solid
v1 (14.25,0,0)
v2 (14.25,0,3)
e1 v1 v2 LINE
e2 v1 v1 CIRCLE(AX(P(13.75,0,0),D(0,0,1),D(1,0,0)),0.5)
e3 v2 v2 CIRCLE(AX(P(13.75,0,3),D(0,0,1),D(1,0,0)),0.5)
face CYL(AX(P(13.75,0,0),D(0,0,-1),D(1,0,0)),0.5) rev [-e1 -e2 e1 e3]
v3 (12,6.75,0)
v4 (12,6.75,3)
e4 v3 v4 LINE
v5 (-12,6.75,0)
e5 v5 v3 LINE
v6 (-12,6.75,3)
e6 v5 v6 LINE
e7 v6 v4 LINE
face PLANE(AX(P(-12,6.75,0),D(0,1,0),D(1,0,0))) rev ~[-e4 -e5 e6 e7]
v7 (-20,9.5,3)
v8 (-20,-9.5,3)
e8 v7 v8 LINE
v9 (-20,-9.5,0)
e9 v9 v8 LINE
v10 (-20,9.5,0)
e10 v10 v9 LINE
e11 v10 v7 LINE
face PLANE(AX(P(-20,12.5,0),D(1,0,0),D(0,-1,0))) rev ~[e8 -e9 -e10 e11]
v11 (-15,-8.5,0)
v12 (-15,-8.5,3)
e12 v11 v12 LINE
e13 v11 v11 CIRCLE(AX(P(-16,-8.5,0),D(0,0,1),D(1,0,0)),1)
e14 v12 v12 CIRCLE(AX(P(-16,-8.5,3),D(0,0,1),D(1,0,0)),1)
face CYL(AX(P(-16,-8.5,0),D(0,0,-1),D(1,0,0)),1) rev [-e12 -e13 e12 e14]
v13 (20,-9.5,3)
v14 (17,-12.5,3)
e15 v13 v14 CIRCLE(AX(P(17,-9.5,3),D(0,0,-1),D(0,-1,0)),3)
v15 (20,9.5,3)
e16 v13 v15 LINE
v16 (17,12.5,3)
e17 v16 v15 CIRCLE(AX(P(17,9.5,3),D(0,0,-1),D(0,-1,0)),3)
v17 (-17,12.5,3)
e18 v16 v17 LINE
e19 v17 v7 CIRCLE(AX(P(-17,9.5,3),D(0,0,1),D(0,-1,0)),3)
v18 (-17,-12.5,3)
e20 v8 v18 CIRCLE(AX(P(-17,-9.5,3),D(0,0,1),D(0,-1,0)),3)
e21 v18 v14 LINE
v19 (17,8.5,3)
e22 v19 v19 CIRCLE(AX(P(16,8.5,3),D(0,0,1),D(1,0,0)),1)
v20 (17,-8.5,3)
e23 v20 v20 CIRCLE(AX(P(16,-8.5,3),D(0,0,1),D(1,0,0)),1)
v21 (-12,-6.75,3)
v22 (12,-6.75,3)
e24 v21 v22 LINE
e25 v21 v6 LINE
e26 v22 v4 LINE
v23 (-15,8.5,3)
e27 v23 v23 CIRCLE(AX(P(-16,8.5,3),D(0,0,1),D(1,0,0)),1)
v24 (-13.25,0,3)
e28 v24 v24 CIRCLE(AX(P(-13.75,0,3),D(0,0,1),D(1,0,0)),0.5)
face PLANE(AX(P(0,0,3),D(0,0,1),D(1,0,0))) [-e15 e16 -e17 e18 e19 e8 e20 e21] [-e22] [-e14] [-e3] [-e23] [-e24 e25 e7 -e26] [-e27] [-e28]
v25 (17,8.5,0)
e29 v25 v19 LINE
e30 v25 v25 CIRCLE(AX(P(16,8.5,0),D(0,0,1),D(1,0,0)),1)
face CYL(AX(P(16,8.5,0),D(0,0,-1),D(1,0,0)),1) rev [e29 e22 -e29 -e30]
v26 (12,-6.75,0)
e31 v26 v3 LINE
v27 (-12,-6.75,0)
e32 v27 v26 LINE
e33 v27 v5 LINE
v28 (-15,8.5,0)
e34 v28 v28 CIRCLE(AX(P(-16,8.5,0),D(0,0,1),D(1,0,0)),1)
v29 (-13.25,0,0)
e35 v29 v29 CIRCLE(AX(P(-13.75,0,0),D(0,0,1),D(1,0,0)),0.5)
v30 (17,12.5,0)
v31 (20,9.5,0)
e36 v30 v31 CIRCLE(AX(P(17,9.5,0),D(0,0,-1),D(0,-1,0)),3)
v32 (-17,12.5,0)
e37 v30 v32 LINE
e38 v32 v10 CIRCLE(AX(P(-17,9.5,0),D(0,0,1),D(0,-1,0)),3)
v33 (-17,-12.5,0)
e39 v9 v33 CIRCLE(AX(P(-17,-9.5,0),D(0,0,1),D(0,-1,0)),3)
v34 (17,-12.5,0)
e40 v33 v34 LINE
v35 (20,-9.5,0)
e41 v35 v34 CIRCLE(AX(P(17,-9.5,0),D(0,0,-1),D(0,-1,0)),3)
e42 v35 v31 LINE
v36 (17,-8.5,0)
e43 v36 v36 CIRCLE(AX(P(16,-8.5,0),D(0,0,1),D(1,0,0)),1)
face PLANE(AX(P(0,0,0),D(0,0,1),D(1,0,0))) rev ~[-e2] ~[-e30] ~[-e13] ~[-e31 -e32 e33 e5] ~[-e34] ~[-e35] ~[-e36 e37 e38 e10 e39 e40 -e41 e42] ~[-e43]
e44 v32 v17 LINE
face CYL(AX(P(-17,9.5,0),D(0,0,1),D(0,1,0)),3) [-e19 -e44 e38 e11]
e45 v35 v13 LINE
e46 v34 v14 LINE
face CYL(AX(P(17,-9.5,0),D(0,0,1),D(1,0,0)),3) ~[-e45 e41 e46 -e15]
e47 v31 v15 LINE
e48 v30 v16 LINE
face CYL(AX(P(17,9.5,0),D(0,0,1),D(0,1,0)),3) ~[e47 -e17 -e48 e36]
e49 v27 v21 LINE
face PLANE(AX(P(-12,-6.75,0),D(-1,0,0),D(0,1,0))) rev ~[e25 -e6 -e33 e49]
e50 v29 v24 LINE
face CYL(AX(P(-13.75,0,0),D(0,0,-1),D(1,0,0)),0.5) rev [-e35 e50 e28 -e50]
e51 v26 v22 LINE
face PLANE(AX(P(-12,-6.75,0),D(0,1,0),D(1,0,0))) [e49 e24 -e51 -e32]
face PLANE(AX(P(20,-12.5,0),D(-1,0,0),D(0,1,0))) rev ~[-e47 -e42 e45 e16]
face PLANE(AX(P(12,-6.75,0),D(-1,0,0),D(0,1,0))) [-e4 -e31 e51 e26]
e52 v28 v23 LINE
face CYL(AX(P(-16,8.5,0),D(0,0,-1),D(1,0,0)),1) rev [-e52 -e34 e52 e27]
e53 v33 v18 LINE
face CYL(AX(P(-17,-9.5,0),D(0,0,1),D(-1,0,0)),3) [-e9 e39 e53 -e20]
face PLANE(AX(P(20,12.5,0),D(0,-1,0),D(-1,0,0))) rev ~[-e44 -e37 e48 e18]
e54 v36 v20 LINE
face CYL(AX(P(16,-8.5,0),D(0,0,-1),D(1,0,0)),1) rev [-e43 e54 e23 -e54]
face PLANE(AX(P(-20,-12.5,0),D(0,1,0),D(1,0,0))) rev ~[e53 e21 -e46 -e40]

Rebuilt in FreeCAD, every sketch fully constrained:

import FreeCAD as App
import Part
import Sketcher
from FreeCAD import Vector
Q = App.Units.Quantity


def edges_at(feature, points):
    """Names of the edges that pass closest to the given points."""
    edges = feature.Shape.Edges
    near = lambda p: min(range(len(edges)), key=lambda i: edges[i].distToShape(Part.Vertex(*p))[0])
    return sorted({f"Edge{near(p) + 1}" for p in points})


def add_polygon(sketch, points):
    """Adds a closed chain of lines whose ends are joined by coincident constraints."""
    first, n = sketch.GeometryCount, len(points)
    for a, b in zip(points, points[1:] + points[:1]):
        sketch.addGeometry(Part.LineSegment(App.Vector(*a, 0), App.Vector(*b, 0)), False)
    for i in range(n):
        sketch.addConstraint(Sketcher.Constraint("Coincident", first + i, 2, first + (i + 1) % n, 1))

doc = App.newDocument("Part")
params = doc.addObject("Spreadsheet::Sheet", "Params")
for row, (alias, value) in enumerate([
    ("sketch1_diameter", "2 mm"),
    ("sketch1_diameter2", "1 mm"),
    ("sketch1_width", "40 mm"),
    ("sketch1_width2", "24 mm"),
    ("sketch1_height", "25 mm"),
    ("pad1_length", "3 mm"),
    ("fillet_radius", "3 mm"),
], start=1):
    params.set(f"A{row}", alias)
    params.set(f"B{row}", "=" + value)
    params.setAlias(f"B{row}", alias)

body = doc.addObject("PartDesign::Body", "Body")

# Sketch on XY plane
sketch1 = body.newObject("Sketcher::SketchObject", "Sketch")
sketch1.AttachmentSupport = (doc.getObject("XY_Plane"), [""])
sketch1.MapMode = "FlatFace"
add_polygon(sketch1, [(20, 12.5), (-20, 12.5), (-20, -12.5), (20, -12.5)])  # lines 0-3
sketch1.addGeometry(Part.Circle(Vector(-16, -8.5, 0), Vector(0, 0, 1), 1), False)  # 4
sketch1.addGeometry(Part.Circle(Vector(16, -8.5, 0), Vector(0, 0, 1), 1), False)  # 5
sketch1.addGeometry(Part.Circle(Vector(-13.8, 0, 0), Vector(0, 0, 1), 0.5), False)  # 6
sketch1.addGeometry(Part.Circle(Vector(-16, 8.5, 0), Vector(0, 0, 1), 1), False)  # 7
add_polygon(sketch1, [(12, -6.8), (-12, -6.8), (-12, 6.8), (12, 6.8)])  # lines 8-11
sketch1.addGeometry(Part.Circle(Vector(13.8, 0, 0), Vector(0, 0, 1), 0.5), False)  # 12
sketch1.addGeometry(Part.Circle(Vector(16, 8.5, 0), Vector(0, 0, 1), 1), False)  # 13
sketch1.addConstraint([
    Sketcher.Constraint("Horizontal", 0),
    Sketcher.Constraint("Vertical", 1),
    Sketcher.Constraint("Horizontal", 2),
    Sketcher.Constraint("Vertical", 3),
    Sketcher.Constraint("Horizontal", 8),
    Sketcher.Constraint("Vertical", 9),
    Sketcher.Constraint("Horizontal", 10),
    Sketcher.Constraint("Vertical", 11),
    Sketcher.Constraint("Equal", 4, 5),
    Sketcher.Constraint("Equal", 5, 7),
    Sketcher.Constraint("Equal", 6, 12),
    Sketcher.Constraint("Equal", 7, 13),
    Sketcher.Constraint("Symmetric", 5, 3, 7, 3, -1, 1),
    Sketcher.Constraint("Symmetric", 6, 3, 12, 3, -1, 1),
    Sketcher.Constraint("Symmetric", 4, 3, 13, 3, -1, 1),
    Sketcher.Constraint("Symmetric", 0, 2, 2, 2, -1, 1),
    Sketcher.Constraint("Symmetric", 8, 2, 10, 2, -1, 1),
    Sketcher.Constraint("Symmetric", 4, 3, 5, 3, -2),
    Sketcher.Constraint("PointOnObject", 6, 3, -1),
    Sketcher.Constraint("Diameter", 4, Q("2 mm")),
    Sketcher.Constraint("Diameter", 6, Q("1 mm")),
    Sketcher.Constraint("DistanceX", 0, 2, 0, 1, Q("40 mm")),
    Sketcher.Constraint("DistanceX", 8, 2, 8, 1, Q("24 mm")),
    Sketcher.Constraint("DistanceY", 1, 2, 1, 1, Q("25 mm")),
    Sketcher.Constraint("DistanceY", 9, 1, 9, 2, Q("13.5 mm")),
    Sketcher.Constraint("DistanceX", 4, 3, -1, 1, Q("16 mm")),
    Sketcher.Constraint("DistanceY", 4, 3, 7, 3, Q("17 mm")),
    Sketcher.Constraint("DistanceX", 6, 3, 12, 3, Q("27.5 mm")),
])
sketch1.setExpression("Constraints[27]", "Params.sketch1_diameter")
sketch1.setExpression("Constraints[28]", "Params.sketch1_diameter2")
sketch1.setExpression("Constraints[29]", "Params.sketch1_width")
sketch1.setExpression("Constraints[30]", "Params.sketch1_width2")
sketch1.setExpression("Constraints[31]", "Params.sketch1_height")
pad1 = body.newObject("PartDesign::Pad", "Pad")
pad1.Profile = sketch1
pad1.setExpression("Length", "Params.pad1_length")
doc.recompute()

fillet = body.newObject("PartDesign::Fillet", "Fillet")
fillet.Base = (pad1, edges_at(pad1, [
    (20, -12.5, 1.5),
    (-20, -12.5, 1.5),
    (20, 12.5, 1.5),
    (-20, 12.5, 1.5),
]))
fillet.setExpression("Radius", "Params.fillet_radius")

doc.recompute()
